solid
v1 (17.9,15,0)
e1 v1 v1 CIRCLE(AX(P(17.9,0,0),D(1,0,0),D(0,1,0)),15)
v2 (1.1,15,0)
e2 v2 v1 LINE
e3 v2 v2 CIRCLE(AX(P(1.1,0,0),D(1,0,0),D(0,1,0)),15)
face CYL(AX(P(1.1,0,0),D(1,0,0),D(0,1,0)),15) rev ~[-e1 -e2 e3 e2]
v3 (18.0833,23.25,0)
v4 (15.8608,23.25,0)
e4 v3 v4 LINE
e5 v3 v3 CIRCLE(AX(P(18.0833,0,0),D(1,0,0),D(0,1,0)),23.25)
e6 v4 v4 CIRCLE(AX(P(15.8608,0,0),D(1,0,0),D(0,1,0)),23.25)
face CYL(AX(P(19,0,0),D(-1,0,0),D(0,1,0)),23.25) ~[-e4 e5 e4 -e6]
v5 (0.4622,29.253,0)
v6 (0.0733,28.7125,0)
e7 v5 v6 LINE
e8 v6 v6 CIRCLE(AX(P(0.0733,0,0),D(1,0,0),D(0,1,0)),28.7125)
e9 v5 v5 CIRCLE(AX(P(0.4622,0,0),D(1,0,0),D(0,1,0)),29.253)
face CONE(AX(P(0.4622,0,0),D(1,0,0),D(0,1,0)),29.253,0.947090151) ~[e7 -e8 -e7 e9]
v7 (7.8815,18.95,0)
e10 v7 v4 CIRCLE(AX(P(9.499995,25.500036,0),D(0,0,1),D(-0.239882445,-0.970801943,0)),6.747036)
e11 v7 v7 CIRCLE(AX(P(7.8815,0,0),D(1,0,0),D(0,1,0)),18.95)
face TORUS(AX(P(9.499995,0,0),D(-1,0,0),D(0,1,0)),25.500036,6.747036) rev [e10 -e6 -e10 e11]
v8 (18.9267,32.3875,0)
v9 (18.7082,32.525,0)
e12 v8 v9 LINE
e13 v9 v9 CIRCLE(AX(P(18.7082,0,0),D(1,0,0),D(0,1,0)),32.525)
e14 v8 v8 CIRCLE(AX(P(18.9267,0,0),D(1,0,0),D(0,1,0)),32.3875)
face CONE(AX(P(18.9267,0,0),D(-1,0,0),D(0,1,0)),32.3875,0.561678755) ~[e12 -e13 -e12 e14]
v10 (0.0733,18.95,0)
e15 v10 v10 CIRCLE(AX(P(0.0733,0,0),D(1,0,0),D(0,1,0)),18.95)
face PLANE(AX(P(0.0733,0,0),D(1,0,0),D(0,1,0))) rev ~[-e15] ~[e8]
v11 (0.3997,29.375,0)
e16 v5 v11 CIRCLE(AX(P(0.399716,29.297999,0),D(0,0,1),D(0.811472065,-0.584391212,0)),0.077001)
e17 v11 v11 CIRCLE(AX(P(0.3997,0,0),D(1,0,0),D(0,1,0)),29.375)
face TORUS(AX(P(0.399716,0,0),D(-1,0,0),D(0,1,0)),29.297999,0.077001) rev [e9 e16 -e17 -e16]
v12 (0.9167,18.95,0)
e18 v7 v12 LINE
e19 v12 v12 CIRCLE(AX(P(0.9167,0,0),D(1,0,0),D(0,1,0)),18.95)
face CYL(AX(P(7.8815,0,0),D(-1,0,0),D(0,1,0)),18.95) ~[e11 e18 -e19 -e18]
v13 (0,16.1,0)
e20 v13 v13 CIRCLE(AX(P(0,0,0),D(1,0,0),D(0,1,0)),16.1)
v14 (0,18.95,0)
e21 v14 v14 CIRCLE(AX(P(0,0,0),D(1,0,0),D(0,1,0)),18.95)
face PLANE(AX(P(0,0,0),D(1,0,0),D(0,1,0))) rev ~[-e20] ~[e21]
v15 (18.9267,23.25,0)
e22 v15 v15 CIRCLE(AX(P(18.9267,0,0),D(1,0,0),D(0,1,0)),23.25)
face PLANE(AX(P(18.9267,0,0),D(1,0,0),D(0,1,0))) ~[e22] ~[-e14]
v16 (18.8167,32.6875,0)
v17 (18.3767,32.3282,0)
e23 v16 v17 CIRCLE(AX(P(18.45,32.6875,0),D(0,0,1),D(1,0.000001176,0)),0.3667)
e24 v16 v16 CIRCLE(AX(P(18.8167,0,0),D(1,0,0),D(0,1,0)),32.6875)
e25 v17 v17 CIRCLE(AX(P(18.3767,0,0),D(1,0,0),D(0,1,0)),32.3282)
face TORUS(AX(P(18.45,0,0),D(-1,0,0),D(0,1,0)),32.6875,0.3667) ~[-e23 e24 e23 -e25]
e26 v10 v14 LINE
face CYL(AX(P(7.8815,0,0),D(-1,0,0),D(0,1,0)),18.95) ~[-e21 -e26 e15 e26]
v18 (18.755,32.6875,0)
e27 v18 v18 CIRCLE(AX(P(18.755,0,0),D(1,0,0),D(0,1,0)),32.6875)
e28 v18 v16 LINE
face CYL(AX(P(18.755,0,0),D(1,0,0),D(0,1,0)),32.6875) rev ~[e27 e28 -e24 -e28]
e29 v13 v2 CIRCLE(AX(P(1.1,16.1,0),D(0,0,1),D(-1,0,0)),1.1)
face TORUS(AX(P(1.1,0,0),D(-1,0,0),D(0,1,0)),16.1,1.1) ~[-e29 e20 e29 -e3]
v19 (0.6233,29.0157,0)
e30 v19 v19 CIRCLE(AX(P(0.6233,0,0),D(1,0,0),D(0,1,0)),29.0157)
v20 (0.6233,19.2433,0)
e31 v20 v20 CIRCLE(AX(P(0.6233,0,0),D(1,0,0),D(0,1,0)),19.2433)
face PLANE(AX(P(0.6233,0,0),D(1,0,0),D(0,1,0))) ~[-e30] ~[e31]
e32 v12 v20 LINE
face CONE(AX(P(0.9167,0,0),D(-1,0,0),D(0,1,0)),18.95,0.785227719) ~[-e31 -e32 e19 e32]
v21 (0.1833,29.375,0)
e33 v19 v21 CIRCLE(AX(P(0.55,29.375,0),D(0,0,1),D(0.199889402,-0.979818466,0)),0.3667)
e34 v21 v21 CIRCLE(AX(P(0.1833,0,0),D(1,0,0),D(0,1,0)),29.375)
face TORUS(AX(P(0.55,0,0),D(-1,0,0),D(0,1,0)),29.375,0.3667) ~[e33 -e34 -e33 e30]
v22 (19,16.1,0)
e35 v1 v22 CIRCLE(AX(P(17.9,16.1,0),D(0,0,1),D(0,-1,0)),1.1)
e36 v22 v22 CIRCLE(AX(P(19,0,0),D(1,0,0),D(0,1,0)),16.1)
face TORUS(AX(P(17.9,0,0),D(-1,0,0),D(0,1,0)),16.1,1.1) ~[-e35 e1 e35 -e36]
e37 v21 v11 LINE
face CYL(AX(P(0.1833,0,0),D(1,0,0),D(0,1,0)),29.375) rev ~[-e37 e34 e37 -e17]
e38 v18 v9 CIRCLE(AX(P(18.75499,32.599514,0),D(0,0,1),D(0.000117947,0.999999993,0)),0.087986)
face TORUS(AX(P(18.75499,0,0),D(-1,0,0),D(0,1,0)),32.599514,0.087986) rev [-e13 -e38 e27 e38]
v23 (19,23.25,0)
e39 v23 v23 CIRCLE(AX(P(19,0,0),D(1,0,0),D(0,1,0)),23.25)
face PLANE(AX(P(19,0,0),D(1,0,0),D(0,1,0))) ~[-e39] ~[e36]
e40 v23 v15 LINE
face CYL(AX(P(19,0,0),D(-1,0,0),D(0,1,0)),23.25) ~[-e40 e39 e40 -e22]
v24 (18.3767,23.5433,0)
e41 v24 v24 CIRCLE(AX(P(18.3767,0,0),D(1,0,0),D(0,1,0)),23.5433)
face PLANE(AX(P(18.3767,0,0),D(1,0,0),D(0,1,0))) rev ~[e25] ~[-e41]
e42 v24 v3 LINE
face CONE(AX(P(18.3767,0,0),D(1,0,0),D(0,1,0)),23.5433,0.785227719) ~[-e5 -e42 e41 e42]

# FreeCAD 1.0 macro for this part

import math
import FreeCAD as App
import Part
import Sketcher
from FreeCAD import Vector
Q = App.Units.Quantity

doc = App.newDocument("Part")
body = doc.addObject("PartDesign::Body", "Body")

sketch1 = body.newObject("Sketcher::SketchObject", "Sketch")
sketch1.AttachmentSupport = (doc.getObject("XY_Plane"), [""])
sketch1.MapMode = "FlatFace"
sketch1.addGeometry(Part.LineSegment(Vector(7.8815, 18.95, 0), Vector(0, 18.95, 0)), False)
sketch1.addGeometry(Part.LineSegment(Vector(0, 18.95, 0), Vector(0, 16.1, 0)), False)
sketch1.addGeometry(Part.ArcOfCircle(Part.Circle(Vector(1.1, 16.1, 0), Vector(0, 0, 1), 1.1), math.radians(180), math.radians(270)), False)
sketch1.addGeometry(Part.LineSegment(Vector(1.1, 15, 0), Vector(17.9, 15, 0)), False)
sketch1.addGeometry(Part.ArcOfCircle(Part.Circle(Vector(17.9, 16.1, 0), Vector(0, 0, 1), 1.1), math.radians(-90), math.radians(0)), False)
sketch1.addGeometry(Part.LineSegment(Vector(19, 16.1, 0), Vector(19, 23.25, 0)), False)
sketch1.addGeometry(Part.LineSegment(Vector(19, 23.25, 0), Vector(15.8608, 23.25, 0)), False)
sketch1.addGeometry(Part.ArcOfCircle(Part.Circle(Vector(9.5, 25.5, 0), Vector(0, 0, 1), 6.747002), math.radians(-103.879712), math.radians(-19.480168)), False)
sketch1.addConstraint(Sketcher.Constraint("Coincident", 0, 2, 1, 1))
sketch1.addConstraint(Sketcher.Constraint("Tangent", 1, 2, 2, 1))
sketch1.addConstraint(Sketcher.Constraint("Tangent", 2, 2, 3, 1))
sketch1.addConstraint(Sketcher.Constraint("Tangent", 3, 2, 4, 1))
sketch1.addConstraint(Sketcher.Constraint("Tangent", 4, 2, 5, 1))
sketch1.addConstraint(Sketcher.Constraint("Coincident", 5, 2, 6, 1))
sketch1.addConstraint(Sketcher.Constraint("Coincident", 6, 2, 7, 2))
sketch1.addConstraint(Sketcher.Constraint("Coincident", 7, 1, 0, 1))
sketch1.addConstraint(Sketcher.Constraint("Horizontal", 0))
sketch1.addConstraint(Sketcher.Constraint("Vertical", 1))
sketch1.addConstraint(Sketcher.Constraint("Horizontal", 3))
sketch1.addConstraint(Sketcher.Constraint("Vertical", 5))
sketch1.addConstraint(Sketcher.Constraint("Horizontal", 6))
sketch1.addConstraint(Sketcher.Constraint("Equal", 2, 4))
sketch1.addConstraint(Sketcher.Constraint("PointOnObject", 0, 2, -2))
sketch1.addConstraint(Sketcher.Constraint("Radius", 2, Q("1.1 mm")))
sketch1.addConstraint(Sketcher.Constraint("DistanceX", 3, 1, 3, 2, Q("16.8 mm")))
sketch1.addConstraint(Sketcher.Constraint("DistanceY", -1, 1, 2, 2, Q("15 mm")))
sketch1.addConstraint(Sketcher.Constraint("Radius", 7, Q("6.747 mm")))
sketch1.addConstraint(Sketcher.Constraint("DistanceY", 1, 2, 1, 1, Q("2.85 mm")))
sketch1.addConstraint(Sketcher.Constraint("DistanceY", 5, 1, 5, 2, Q("7.15 mm")))
sketch1.addConstraint(Sketcher.Constraint("DistanceX", -1, 1, 7, 3, Q("9.5 mm")))
sketch1.addConstraint(Sketcher.Constraint("DistanceY", -1, 1, 7, 3, Q("25.5 mm")))
revolution = body.newObject("PartDesign::Revolution", "Revolution")
revolution.Profile = sketch1
revolution.ReferenceAxis = (sketch1, ["H_Axis"])
revolution.Angle = 360

sketch2 = body.newObject("Sketcher::SketchObject", "Sketch001")
sketch2.AttachmentSupport = (doc.getObject("XY_Plane"), [""])
sketch2.MapMode = "FlatFace"
sketch2.addGeometry(Part.LineSegment(Vector(0.4622, 29.253, 0), Vector(0.0733, 28.7125, 0)), False)
sketch2.addGeometry(Part.LineSegment(Vector(0.0733, 28.7125, 0), Vector(0.0733, 18.95, 0)), False)
sketch2.addGeometry(Part.LineSegment(Vector(0.0733, 18.95, 0), Vector(0.9167, 18.95, 0)), False)
sketch2.addGeometry(Part.LineSegment(Vector(0.9167, 18.95, 0), Vector(0.6233, 19.2433, 0)), False)
sketch2.addGeometry(Part.LineSegment(Vector(0.6233, 19.2433, 0), Vector(0.6233, 29.0157, 0)), False)
sketch2.addGeometry(Part.ArcOfCircle(Part.Circle(Vector(0.55, 29.375, 0), Vector(0, 0, 1), 0.366701), math.radians(-78.469441), math.radians(180)), False)
sketch2.addGeometry(Part.LineSegment(Vector(0.1833, 29.375, 0), Vector(0.3997, 29.375, 0)), False)
sketch2.addGeometry(Part.ArcOfCircle(Part.Circle(Vector(0.3997, 29.298, 0), Vector(0, 0, 1), 0.077015), math.radians(-35.753887), math.radians(90)), False)
sketch2.addConstraint(Sketcher.Constraint("Coincident", 0, 2, 1, 1))
sketch2.addConstraint(Sketcher.Constraint("Coincident", 1, 2, 2, 1))
sketch2.addConstraint(Sketcher.Constraint("Coincident", 2, 2, 3, 1))
sketch2.addConstraint(Sketcher.Constraint("Coincident", 3, 2, 4, 1))
sketch2.addConstraint(Sketcher.Constraint("Coincident", 4, 2, 5, 1))
sketch2.addConstraint(Sketcher.Constraint("Coincident", 5, 2, 6, 1))
sketch2.addConstraint(Sketcher.Constraint("Tangent", 6, 2, 7, 2))
sketch2.addConstraint(Sketcher.Constraint("Tangent", 7, 1, 0, 1))
sketch2.addConstraint(Sketcher.Constraint("Vertical", 1))
sketch2.addConstraint(Sketcher.Constraint("Horizontal", 2))
sketch2.addConstraint(Sketcher.Constraint("Vertical", 4))
sketch2.addConstraint(Sketcher.Constraint("Horizontal", 6))
sketch2.addConstraint(Sketcher.Constraint("Radius", 7, Q("0.077 mm")))
sketch2.addConstraint(Sketcher.Constraint("Angle", 3, Q("135.0098 deg")))
sketch2.addConstraint(Sketcher.Constraint("Radius", 5, Q("0.3667 mm")))
sketch2.addConstraint(Sketcher.Constraint("DistanceX", -1, 1, 5, 3, Q("0.55 mm")))
sketch2.addConstraint(Sketcher.Constraint("DistanceY", -1, 1, 1, 2, Q("18.95 mm")))
sketch2.addConstraint(Sketcher.Constraint("DistanceX", 1, 2, 3, 2, Q("0.55 mm")))
sketch2.addConstraint(Sketcher.Constraint("DistanceX", 5, 2, 4, 2, Q("0.44 mm")))
sketch2.addConstraint(Sketcher.Constraint("DistanceX", 2, 1, 2, 2, Q("0.8434 mm")))
sketch2.addConstraint(Sketcher.Constraint("DistanceX", 6, 1, 6, 2, Q("0.2164 mm")))
sketch2.addConstraint(Sketcher.Constraint("DistanceY", 1, 2, 1, 1, Q("9.7625 mm")))
sketch2.addConstraint(Sketcher.Constraint("DistanceY", 4, 1, 4, 2, Q("9.7724 mm")))
sketch2.addConstraint(Sketcher.Constraint("DistanceY", -1, 1, 7, 3, Q("29.298 mm")))
revolution2 = body.newObject("PartDesign::Revolution", "Revolution001")
revolution2.Profile = sketch2
revolution2.ReferenceAxis = (sketch2, ["H_Axis"])
revolution2.Angle = 360

sketch3 = body.newObject("Sketcher::SketchObject", "Sketch002")
sketch3.AttachmentSupport = (doc.getObject("XY_Plane"), [""])
sketch3.MapMode = "FlatFace"
sketch3.addGeometry(Part.LineSegment(Vector(18.755, 32.6875, 0), Vector(18.8167, 32.6875, 0)), False)
sketch3.addGeometry(Part.ArcOfCircle(Part.Circle(Vector(18.45, 32.6875, 0), Vector(0, 0, 1), 0.3667), math.radians(0), math.radians(258.469441)), False)
sketch3.addGeometry(Part.LineSegment(Vector(18.3767, 32.3282, 0), Vector(18.3767, 23.5433, 0)), False)
sketch3.addGeometry(Part.LineSegment(Vector(18.3767, 23.5433, 0), Vector(18.0833, 23.25, 0)), False)
sketch3.addGeometry(Part.LineSegment(Vector(18.0833, 23.25, 0), Vector(18.9267, 23.25, 0)), False)
sketch3.addGeometry(Part.LineSegment(Vector(18.9267, 23.25, 0), Vector(18.9267, 32.3875, 0)), False)
sketch3.addGeometry(Part.LineSegment(Vector(18.9267, 32.3875, 0), Vector(18.7082, 32.525, 0)), False)
sketch3.addGeometry(Part.ArcOfCircle(Part.Circle(Vector(18.755, 32.5995, 0), Vector(0, 0, 1), 0.088), math.radians(90), math.radians(237.863458)), False)
sketch3.addConstraint(Sketcher.Constraint("Coincident", 0, 2, 1, 1))
sketch3.addConstraint(Sketcher.Constraint("Coincident", 1, 2, 2, 1))
sketch3.addConstraint(Sketcher.Constraint("Coincident", 2, 2, 3, 1))
sketch3.addConstraint(Sketcher.Constraint("Coincident", 3, 2, 4, 1))
sketch3.addConstraint(Sketcher.Constraint("Coincident", 4, 2, 5, 1))
sketch3.addConstraint(Sketcher.Constraint("Coincident", 5, 2, 6, 1))
sketch3.addConstraint(Sketcher.Constraint("Coincident", 6, 2, 7, 2))
sketch3.addConstraint(Sketcher.Constraint("Tangent", 7, 1, 0, 1))
sketch3.addConstraint(Sketcher.Constraint("Horizontal", 0))
sketch3.addConstraint(Sketcher.Constraint("Vertical", 2))
sketch3.addConstraint(Sketcher.Constraint("Horizontal", 4))
sketch3.addConstraint(Sketcher.Constraint("Vertical", 5))
sketch3.addConstraint(Sketcher.Constraint("Horizontal", 1, 3, 0, 2))
sketch3.addConstraint(Sketcher.Constraint("Radius", 7, Q("0.088 mm")))
sketch3.addConstraint(Sketcher.Constraint("Angle", 3, Q("-135.0098 deg")))
sketch3.addConstraint(Sketcher.Constraint("Radius", 1, Q("0.3667 mm")))
sketch3.addConstraint(Sketcher.Constraint("DistanceY", 5, 2, 0, 2, Q("0.3 mm")))
sketch3.addConstraint(Sketcher.Constraint("DistanceY", 2, 2, 2, 1, Q("8.785 mm")))
sketch3.addConstraint(Sketcher.Constraint("DistanceX", -1, 1, 1, 3, Q("18.45 mm")))
sketch3.addConstraint(Sketcher.Constraint("DistanceY", -1, 1, 3, 2, Q("23.25 mm")))
sketch3.addConstraint(Sketcher.Constraint("DistanceX", 1, 2, 0, 2, Q("0.44 mm")))
sketch3.addConstraint(Sketcher.Constraint("DistanceX", 2, 2, 4, 2, Q("0.55 mm")))
sketch3.addConstraint(Sketcher.Constraint("DistanceX", 0, 1, 0, 2, Q("0.0617 mm")))
sketch3.addConstraint(Sketcher.Constraint("DistanceX", 4, 1, 4, 2, Q("0.8434 mm")))
sketch3.addConstraint(Sketcher.Constraint("DistanceY", -1, 1, 6, 2, Q("32.525 mm")))
revolution3 = body.newObject("PartDesign::Revolution", "Revolution002")
revolution3.Profile = sketch3
revolution3.ReferenceAxis = (sketch3, ["H_Axis"])
revolution3.Angle = 360

doc.recompute()
